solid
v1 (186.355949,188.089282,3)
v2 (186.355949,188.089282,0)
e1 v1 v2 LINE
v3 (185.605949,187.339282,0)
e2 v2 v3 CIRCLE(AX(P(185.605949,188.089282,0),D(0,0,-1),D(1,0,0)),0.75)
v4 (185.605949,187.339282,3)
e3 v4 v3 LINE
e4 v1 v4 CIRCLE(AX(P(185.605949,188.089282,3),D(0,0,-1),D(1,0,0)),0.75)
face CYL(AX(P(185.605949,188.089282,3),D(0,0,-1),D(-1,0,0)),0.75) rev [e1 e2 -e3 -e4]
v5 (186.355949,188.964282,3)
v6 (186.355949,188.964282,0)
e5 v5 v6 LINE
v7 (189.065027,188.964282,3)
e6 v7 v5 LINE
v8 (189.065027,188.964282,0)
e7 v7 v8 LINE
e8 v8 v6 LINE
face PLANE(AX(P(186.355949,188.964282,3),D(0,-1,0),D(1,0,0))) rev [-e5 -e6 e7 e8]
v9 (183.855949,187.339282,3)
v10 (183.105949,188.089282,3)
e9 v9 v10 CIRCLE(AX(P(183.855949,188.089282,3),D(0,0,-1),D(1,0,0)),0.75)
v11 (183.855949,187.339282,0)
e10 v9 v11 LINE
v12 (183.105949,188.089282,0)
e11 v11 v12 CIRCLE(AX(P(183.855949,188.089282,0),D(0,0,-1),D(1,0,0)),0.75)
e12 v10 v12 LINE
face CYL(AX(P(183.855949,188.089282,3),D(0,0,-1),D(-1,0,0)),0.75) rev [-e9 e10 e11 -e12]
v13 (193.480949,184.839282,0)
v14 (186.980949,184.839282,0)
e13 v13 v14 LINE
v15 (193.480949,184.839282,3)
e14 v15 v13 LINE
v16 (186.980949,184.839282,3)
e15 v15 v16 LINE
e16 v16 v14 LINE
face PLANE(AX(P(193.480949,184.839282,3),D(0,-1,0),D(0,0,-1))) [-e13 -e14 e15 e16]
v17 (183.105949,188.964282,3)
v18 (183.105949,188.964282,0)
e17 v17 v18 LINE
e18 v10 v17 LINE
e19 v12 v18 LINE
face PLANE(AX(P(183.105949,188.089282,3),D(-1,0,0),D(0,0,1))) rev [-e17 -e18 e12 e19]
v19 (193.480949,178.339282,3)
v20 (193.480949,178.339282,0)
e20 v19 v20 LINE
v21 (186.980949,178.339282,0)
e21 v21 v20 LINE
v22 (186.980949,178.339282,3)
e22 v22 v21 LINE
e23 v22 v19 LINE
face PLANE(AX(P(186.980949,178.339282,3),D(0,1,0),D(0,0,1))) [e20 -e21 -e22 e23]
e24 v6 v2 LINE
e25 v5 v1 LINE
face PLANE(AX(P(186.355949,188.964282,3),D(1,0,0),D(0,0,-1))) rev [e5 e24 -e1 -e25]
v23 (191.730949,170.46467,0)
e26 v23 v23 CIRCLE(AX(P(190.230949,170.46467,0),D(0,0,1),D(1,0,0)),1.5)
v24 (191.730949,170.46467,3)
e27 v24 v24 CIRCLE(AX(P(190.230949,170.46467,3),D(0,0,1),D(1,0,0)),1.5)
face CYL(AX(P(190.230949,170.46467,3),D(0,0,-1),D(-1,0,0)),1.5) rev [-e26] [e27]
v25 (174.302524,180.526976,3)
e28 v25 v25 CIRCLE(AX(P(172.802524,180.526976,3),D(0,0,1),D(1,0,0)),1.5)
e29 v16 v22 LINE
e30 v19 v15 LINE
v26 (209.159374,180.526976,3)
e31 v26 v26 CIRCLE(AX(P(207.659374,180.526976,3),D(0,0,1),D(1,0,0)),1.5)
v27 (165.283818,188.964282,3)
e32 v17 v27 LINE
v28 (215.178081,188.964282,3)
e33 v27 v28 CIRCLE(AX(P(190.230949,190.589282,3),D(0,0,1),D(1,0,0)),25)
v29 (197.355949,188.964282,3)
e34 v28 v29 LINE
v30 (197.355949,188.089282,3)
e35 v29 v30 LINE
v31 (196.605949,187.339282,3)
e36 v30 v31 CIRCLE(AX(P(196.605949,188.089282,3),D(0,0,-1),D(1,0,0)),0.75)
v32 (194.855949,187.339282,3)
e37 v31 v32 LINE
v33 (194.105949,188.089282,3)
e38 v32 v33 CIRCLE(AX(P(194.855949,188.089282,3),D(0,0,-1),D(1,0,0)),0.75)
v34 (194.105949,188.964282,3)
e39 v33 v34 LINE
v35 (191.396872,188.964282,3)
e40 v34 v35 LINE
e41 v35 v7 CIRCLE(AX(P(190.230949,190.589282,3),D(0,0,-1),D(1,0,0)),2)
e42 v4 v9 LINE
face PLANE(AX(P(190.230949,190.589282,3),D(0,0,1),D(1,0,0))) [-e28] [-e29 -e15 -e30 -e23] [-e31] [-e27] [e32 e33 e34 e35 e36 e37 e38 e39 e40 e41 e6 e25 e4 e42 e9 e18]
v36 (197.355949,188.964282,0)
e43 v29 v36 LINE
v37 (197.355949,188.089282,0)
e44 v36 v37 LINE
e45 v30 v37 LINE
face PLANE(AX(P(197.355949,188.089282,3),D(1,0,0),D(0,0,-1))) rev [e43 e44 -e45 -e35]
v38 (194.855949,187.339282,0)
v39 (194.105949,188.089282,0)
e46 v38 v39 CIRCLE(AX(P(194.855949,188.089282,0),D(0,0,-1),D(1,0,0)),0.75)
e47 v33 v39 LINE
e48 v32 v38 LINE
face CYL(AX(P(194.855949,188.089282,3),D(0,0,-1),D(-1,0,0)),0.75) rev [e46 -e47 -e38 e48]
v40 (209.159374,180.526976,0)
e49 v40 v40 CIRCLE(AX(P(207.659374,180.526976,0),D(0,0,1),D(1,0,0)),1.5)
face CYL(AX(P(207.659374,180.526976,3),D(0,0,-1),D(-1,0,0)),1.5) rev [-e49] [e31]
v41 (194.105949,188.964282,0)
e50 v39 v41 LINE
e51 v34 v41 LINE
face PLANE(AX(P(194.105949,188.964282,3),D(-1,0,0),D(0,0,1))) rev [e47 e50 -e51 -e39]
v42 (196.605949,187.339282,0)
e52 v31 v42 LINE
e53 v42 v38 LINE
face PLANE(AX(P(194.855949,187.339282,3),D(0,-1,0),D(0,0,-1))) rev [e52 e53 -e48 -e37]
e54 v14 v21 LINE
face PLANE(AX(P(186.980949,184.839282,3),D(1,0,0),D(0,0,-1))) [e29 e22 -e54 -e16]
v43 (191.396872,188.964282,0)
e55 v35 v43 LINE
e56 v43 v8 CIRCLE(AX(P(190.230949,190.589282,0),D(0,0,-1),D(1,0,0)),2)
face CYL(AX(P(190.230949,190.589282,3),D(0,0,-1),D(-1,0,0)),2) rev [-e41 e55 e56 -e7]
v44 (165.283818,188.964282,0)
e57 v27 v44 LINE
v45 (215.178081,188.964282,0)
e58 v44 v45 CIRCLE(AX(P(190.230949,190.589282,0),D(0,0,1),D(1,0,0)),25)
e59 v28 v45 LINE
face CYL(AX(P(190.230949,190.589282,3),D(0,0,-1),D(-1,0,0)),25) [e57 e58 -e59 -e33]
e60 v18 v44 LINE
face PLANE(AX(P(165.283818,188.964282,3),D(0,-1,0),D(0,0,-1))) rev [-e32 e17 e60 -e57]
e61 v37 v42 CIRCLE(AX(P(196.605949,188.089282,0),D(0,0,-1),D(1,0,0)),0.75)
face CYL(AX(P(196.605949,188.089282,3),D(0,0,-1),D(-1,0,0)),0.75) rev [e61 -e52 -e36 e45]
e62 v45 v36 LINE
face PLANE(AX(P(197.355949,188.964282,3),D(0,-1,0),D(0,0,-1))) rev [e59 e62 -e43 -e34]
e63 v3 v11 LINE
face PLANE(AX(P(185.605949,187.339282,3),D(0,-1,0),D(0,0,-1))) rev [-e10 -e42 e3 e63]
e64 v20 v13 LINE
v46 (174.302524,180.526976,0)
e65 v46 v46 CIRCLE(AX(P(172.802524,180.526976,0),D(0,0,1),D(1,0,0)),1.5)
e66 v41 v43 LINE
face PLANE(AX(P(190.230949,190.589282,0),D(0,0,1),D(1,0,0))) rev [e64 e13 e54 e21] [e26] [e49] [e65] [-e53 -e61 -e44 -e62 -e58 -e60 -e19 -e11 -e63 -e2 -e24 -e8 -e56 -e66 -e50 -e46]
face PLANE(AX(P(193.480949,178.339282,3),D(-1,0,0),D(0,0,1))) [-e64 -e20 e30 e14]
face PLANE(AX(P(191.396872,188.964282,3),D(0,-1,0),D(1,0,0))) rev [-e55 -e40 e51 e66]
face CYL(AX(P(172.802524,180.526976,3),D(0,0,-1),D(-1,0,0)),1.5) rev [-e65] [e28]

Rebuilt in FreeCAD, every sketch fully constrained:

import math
import FreeCAD as App
import Part
import Sketcher


def add_polygon(sketch, points):
    """Adds a closed chain of lines whose ends are joined by coincident constraints."""
    first, n = sketch.GeometryCount, len(points)
    for a, b in zip(points, points[1:] + points[:1]):
        sketch.addGeometry(Part.LineSegment(App.Vector(*a, 0), App.Vector(*b, 0)), False)
    for i in range(n):
        sketch.addConstraint(Sketcher.Constraint("Coincident", first + i, 2, first + (i + 1) % n, 1))

doc = App.newDocument("Part")
body = doc.addObject("PartDesign::Body", "Body")

sketch1 = body.newObject("Sketcher::SketchObject", "Sketch")
sketch1.AttachmentSupport = (doc.getObject("XY_Plane"), [""])
sketch1.MapMode = "FlatFace"
sketch1.addGeometry(Part.LineSegment(App.Vector(194.1, 189, 0), App.Vector(191.4, 189, 0)), False)
sketch1.addGeometry(Part.ArcOfCircle(Part.Circle(App.Vector(190.2, 190.6, 0), App.Vector(0, 0, 1), 2), math.radians(-126), math.radians(-54)), False)
sketch1.addGeometry(Part.LineSegment(App.Vector(189.1, 189, 0), App.Vector(186.4, 189, 0)), False)
sketch1.addGeometry(Part.LineSegment(App.Vector(186.4, 189, 0), App.Vector(186.4, 188.1, 0)), False)
sketch1.addGeometry(Part.ArcOfCircle(Part.Circle(App.Vector(185.6, 188.1, 0), App.Vector(0, 0, 1), 0.8), math.radians(-90), math.radians(0)), False)
sketch1.addGeometry(Part.LineSegment(App.Vector(185.6, 187.3, 0), App.Vector(183.9, 187.3, 0)), False)
sketch1.addGeometry(Part.ArcOfCircle(Part.Circle(App.Vector(183.9, 188.1, 0), App.Vector(0, 0, 1), 0.8), math.radians(180), math.radians(270)), False)
sketch1.addGeometry(Part.LineSegment(App.Vector(183.1, 188.1, 0), App.Vector(183.1, 189, 0)), False)
sketch1.addGeometry(Part.LineSegment(App.Vector(183.1, 189, 0), App.Vector(165.3, 189, 0)), False)
sketch1.addGeometry(Part.ArcOfCircle(Part.Circle(App.Vector(190.2, 190.6, 0), App.Vector(0, 0, 1), 25), math.radians(-176), math.radians(-83)), False)
sketch1.addGeometry(Part.ArcOfCircle(Part.Circle(App.Vector(190.2, 190.6, 0), App.Vector(0, 0, 1), 25), math.radians(-83), math.radians(-4)), False)
sketch1.addGeometry(Part.LineSegment(App.Vector(215.2, 189, 0), App.Vector(197.4, 189, 0)), False)
sketch1.addGeometry(Part.LineSegment(App.Vector(197.4, 189, 0), App.Vector(197.4, 188.1, 0)), False)
sketch1.addGeometry(Part.ArcOfCircle(Part.Circle(App.Vector(196.6, 188.1, 0), App.Vector(0, 0, 1), 0.8), math.radians(-90), math.radians(0)), False)
sketch1.addGeometry(Part.LineSegment(App.Vector(196.6, 187.3, 0), App.Vector(194.9, 187.3, 0)), False)
sketch1.addGeometry(Part.ArcOfCircle(Part.Circle(App.Vector(194.9, 188.1, 0), App.Vector(0, 0, 1), 0.8), math.radians(180), math.radians(270)), False)
sketch1.addGeometry(Part.LineSegment(App.Vector(194.1, 188.1, 0), App.Vector(194.1, 189, 0)), False)
sketch1.addGeometry(Part.Circle(App.Vector(190.2, 170.5, 0), App.Vector(0, 0, 1), 1.5), False)
sketch1.addGeometry(Part.Circle(App.Vector(207.7, 180.5, 0), App.Vector(0, 0, 1), 1.5), False)
sketch1.addGeometry(Part.Circle(App.Vector(172.8, 180.5, 0), App.Vector(0, 0, 1), 1.5), False)
add_polygon(sketch1, [(187, 178.3), (187, 184.8), (193.5, 184.8), (193.5, 178.3)])
sketch1.addConstraint([
    Sketcher.Constraint("Coincident", 0, 2, 1, 2),
    Sketcher.Constraint("Coincident", 1, 1, 2, 1),
    Sketcher.Constraint("Coincident", 2, 2, 3, 1),
    Sketcher.Constraint("Tangent", 3, 2, 4, 2),
    Sketcher.Constraint("Tangent", 4, 1, 5, 1),
    Sketcher.Constraint("Tangent", 5, 2, 6, 2),
    Sketcher.Constraint("Tangent", 6, 1, 7, 1),
    Sketcher.Constraint("Coincident", 7, 2, 8, 1),
    Sketcher.Constraint("Coincident", 8, 2, 9, 1),
    Sketcher.Constraint("Tangent", 9, 2, 10, 1),
    Sketcher.Constraint("Coincident", 10, 2, 11, 1),
    Sketcher.Constraint("Coincident", 11, 2, 12, 1),
    Sketcher.Constraint("Tangent", 12, 2, 13, 2),
    Sketcher.Constraint("Tangent", 13, 1, 14, 1),
    Sketcher.Constraint("Tangent", 14, 2, 15, 2),
    Sketcher.Constraint("Tangent", 15, 1, 16, 1),
    Sketcher.Constraint("Coincident", 16, 2, 0, 1),
    Sketcher.Constraint("Horizontal", 0),
    Sketcher.Constraint("Horizontal", 2),
    Sketcher.Constraint("Vertical", 3),
    Sketcher.Constraint("Horizontal", 5),
    Sketcher.Constraint("Vertical", 7),
    Sketcher.Constraint("Horizontal", 8),
    Sketcher.Constraint("Horizontal", 11),
    Sketcher.Constraint("Vertical", 12),
    Sketcher.Constraint("Horizontal", 14),
    Sketcher.Constraint("Vertical", 16),
    Sketcher.Constraint("Vertical", 20),
    Sketcher.Constraint("Horizontal", 21),
    Sketcher.Constraint("Vertical", 22),
    Sketcher.Constraint("Horizontal", 23),
    Sketcher.Constraint("Coincident", 9, 3, 1, 3),
    Sketcher.Constraint("Equal", 4, 6),
    Sketcher.Constraint("Equal", 9, 10),
    Sketcher.Constraint("Equal", 6, 13),
    Sketcher.Constraint("Equal", 13, 15),
    Sketcher.Constraint("Equal", 17, 18),
    Sketcher.Constraint("Equal", 18, 19),
    Sketcher.Constraint("Horizontal", 6, 3, 13, 3),
    Sketcher.Constraint("Horizontal", 18, 3, 19, 3),
    Sketcher.Constraint("Horizontal", 0, 2, 1, 1),
    Sketcher.Constraint("Horizontal", 2, 2, 7, 2),
    Sketcher.Constraint("Horizontal", 8, 2, 10, 2),
    Sketcher.Constraint("Vertical", 10, 3, 17, 3),
    Sketcher.Constraint("Vertical", 9, 2, 21, 2),
    Sketcher.Constraint("Equal", 0, 2),
    Sketcher.Constraint("Equal", 8, 11),
    Sketcher.Constraint("Equal", 23, 20),
    Sketcher.Constraint("Diameter", 17, 3.0),
    Sketcher.Constraint("Radius", 1, 2.0),
    Sketcher.Constraint("Radius", 9, 25.0),
    Sketcher.Constraint("Radius", 4, 0.75),
    Sketcher.Constraint("DistanceX", 21, 1, 21, 2, 6.5),
    Sketcher.Constraint("DistanceX", 4, 3, 13, 3, 11.0),
    Sketcher.Constraint("DistanceY", 22, 2, 14, 2, 9.0),
    Sketcher.Constraint("DistanceX", 5, 2, 5, 1, 1.75),
    Sketcher.Constraint("DistanceY", 4, 3, 1, 3, 2.5),
    Sketcher.Constraint("DistanceY", 3, 2, 3, 1, 0.875),
    Sketcher.Constraint("DistanceX", 17, 3, 9, 2, 3.25),
    Sketcher.Constraint("DistanceX", -1, 1, 1, 3, 190.230949),
    Sketcher.Constraint("DistanceY", -1, 1, 1, 3, 190.589282),
    Sketcher.Constraint("DistanceY", -1, 1, 17, 3, 170.46467),
    Sketcher.Constraint("DistanceX", -1, 1, 18, 3, 207.659374),
    Sketcher.Constraint("DistanceY", -1, 1, 18, 3, 180.526976),
    Sketcher.Constraint("DistanceX", -1, 1, 19, 3, 172.802524),
])
pad1 = body.newObject("PartDesign::Pad", "Pad")
pad1.Profile = sketch1
pad1.Length = 3

doc.recompute()
